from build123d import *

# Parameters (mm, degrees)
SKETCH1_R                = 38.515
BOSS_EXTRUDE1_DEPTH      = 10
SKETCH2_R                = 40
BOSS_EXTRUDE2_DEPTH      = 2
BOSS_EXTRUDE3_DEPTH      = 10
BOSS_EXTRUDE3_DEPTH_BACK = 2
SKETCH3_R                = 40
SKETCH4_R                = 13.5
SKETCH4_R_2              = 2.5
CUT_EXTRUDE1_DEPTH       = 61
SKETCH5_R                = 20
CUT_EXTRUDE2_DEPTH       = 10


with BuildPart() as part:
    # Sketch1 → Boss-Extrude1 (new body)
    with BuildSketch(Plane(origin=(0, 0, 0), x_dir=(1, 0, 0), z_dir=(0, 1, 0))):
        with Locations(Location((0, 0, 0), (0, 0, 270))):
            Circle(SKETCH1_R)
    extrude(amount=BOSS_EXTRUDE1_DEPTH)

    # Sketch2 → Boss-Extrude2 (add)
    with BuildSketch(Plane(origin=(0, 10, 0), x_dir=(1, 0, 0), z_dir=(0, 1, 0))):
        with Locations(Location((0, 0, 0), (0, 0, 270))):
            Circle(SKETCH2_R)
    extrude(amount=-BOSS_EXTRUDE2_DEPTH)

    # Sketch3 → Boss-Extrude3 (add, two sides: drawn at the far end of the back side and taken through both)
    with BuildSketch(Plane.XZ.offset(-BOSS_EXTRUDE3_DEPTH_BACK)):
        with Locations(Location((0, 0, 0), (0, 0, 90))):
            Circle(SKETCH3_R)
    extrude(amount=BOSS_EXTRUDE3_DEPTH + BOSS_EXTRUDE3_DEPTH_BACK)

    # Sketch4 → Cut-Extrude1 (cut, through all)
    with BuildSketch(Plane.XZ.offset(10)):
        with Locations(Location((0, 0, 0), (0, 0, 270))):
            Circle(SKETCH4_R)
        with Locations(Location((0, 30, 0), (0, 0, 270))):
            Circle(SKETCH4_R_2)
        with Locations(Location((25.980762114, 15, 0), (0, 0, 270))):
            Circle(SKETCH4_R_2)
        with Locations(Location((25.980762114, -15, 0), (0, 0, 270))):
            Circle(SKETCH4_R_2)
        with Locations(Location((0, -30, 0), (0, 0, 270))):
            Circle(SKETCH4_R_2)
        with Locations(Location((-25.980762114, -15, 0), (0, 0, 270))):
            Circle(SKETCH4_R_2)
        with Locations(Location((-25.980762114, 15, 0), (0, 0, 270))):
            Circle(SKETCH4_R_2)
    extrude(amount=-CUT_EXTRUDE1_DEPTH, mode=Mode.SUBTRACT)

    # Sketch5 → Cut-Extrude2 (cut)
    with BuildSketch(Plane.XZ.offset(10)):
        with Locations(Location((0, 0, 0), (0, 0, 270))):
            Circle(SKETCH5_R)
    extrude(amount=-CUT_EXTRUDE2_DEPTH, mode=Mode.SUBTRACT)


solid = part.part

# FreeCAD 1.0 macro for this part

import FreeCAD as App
import Part
import Sketcher
from FreeCAD import Vector
Q = App.Units.Quantity

doc = App.newDocument("Part")
params = doc.addObject("Spreadsheet::Sheet", "Params")
for row, (alias, value) in enumerate([
    ("sketch1_diameter", "77.03 mm"),
    ("pad1_length", "10 mm"),
    ("sketch2_diameter", "80 mm"),
    ("pad2_length", "2 mm"),
    ("sketch3_diameter", "80 mm"),
    ("pad3_length", "10 mm"),
    ("pad3_length2", "2 mm"),
    ("sketch4_diameter", "27 mm"),
    ("sketch4_diameter2", "5 mm"),
    ("sketch5_diameter", "40 mm"),
    ("pocket2_length", "10 mm"),
], start=1):
    params.set(f"A{row}", alias)
    params.set(f"B{row}", "=" + value)
    params.setAlias(f"B{row}", alias)

body = doc.addObject("PartDesign::Body", "Body")

sketch1 = body.newObject("Sketcher::SketchObject", "Sketch")
sketch1.AttachmentSupport = (doc.getObject("XZ_Plane"), [""])
sketch1.MapMode = "FlatFace"
sketch1.addGeometry(Part.Circle(Vector(0, 0, 0), Vector(0, 0, 1), 39), False)
sketch1.addConstraint([
    Sketcher.Constraint("Coincident", 0, 3, -1, 1),
    Sketcher.Constraint("Diameter", 0, Q("77.03 mm")),
])
sketch1.setExpression("Constraints[1]", "Params.sketch1_diameter")
pad1 = body.newObject("PartDesign::Pad", "Pad")
pad1.Profile = sketch1
pad1.setExpression("Length", "Params.pad1_length")
pad1.Reversed = True

sketch2 = body.newObject("Sketcher::SketchObject", "Sketch001")
sketch2.AttachmentSupport = (doc.getObject("XZ_Plane"), [""])
sketch2.MapMode = "FlatFace"
sketch2.AttachmentOffset = App.Placement(Vector(0, 0, -10), App.Rotation())
sketch2.addGeometry(Part.Circle(Vector(0, 0, 0), Vector(0, 0, 1), 40), False)
sketch2.addConstraint([
    Sketcher.Constraint("Coincident", 0, 3, -1, 1),
    Sketcher.Constraint("Diameter", 0, Q("80 mm")),
])
sketch2.setExpression("Constraints[1]", "Params.sketch2_diameter")
pad2 = body.newObject("PartDesign::Pad", "Pad001")
pad2.Profile = sketch2
pad2.setExpression("Length", "Params.pad2_length")

sketch3 = body.newObject("Sketcher::SketchObject", "Sketch002")
sketch3.AttachmentSupport = (doc.getObject("XZ_Plane"), [""])
sketch3.MapMode = "FlatFace"
sketch3.addGeometry(Part.Circle(Vector(0, 0, 0), Vector(0, 0, 1), 40), False)
sketch3.addConstraint([
    Sketcher.Constraint("Coincident", 0, 3, -1, 1),
    Sketcher.Constraint("Diameter", 0, Q("80 mm")),
])
sketch3.setExpression("Constraints[1]", "Params.sketch3_diameter")
pad3 = body.newObject("PartDesign::Pad", "Pad002")
pad3.Profile = sketch3
pad3.Type = "TwoLengths"
pad3.setExpression("Length", "Params.pad3_length")
pad3.setExpression("Length2", "Params.pad3_length2")

sketch4 = body.newObject("Sketcher::SketchObject", "Sketch003")
sketch4.AttachmentSupport = (doc.getObject("XZ_Plane"), [""])
sketch4.MapMode = "FlatFace"
sketch4.AttachmentOffset = App.Placement(Vector(0, 0, 10), App.Rotation())
sketch4.addGeometry([
    Part.Circle(Vector(0, 0, 0), Vector(0, 0, 1), 13.5),
    Part.Circle(Vector(0, 30, 0), Vector(0, 0, 1), 2.5),
    Part.Circle(Vector(26, 15, 0), Vector(0, 0, 1), 2.5),
    Part.Circle(Vector(26, -15, 0), Vector(0, 0, 1), 2.5),
    Part.Circle(Vector(0, -30, 0), Vector(0, 0, 1), 2.5),
    Part.Circle(Vector(-26, -15, 0), Vector(0, 0, 1), 2.5),
    Part.Circle(Vector(-26, 15, 0), Vector(0, 0, 1), 2.5),
], False)
sketch4.addConstraint([
    Sketcher.Constraint("Coincident", 0, 3, -1, 1),
    Sketcher.Constraint("Equal", 1, 2),
    Sketcher.Constraint("Equal", 2, 3),
    Sketcher.Constraint("Equal", 3, 4),
    Sketcher.Constraint("Equal", 4, 5),
    Sketcher.Constraint("Equal", 5, 6),
    Sketcher.Constraint("Symmetric", 1, 3, 4, 3, -1, 1),
    Sketcher.Constraint("Symmetric", 2, 3, 5, 3, -1, 1),
    Sketcher.Constraint("Symmetric", 3, 3, 6, 3, -1, 1),
    Sketcher.Constraint("Symmetric", 3, 3, 5, 3, -2),
    Sketcher.Constraint("PointOnObject", 1, 3, -2),
    Sketcher.Constraint("Diameter", 0, Q("27 mm")),
    Sketcher.Constraint("Diameter", 1, Q("5 mm")),
    Sketcher.Constraint("DistanceY", -1, 1, 1, 3, Q("30 mm")),
    Sketcher.Constraint("DistanceY", -1, 1, 2, 3, Q("15 mm")),
    Sketcher.Constraint("DistanceX", -1, 1, 2, 3, Q("25.980762 mm")),
])
sketch4.setExpression("Constraints[11]", "Params.sketch4_diameter")
sketch4.setExpression("Constraints[12]", "Params.sketch4_diameter2")
pocket1 = body.newObject("PartDesign::Pocket", "Pocket")
pocket1.Profile = sketch4
pocket1.Type = "ThroughAll"

sketch5 = body.newObject("Sketcher::SketchObject", "Sketch004")
sketch5.AttachmentSupport = (doc.getObject("XZ_Plane"), [""])
sketch5.MapMode = "FlatFace"
sketch5.AttachmentOffset = App.Placement(Vector(0, 0, 10), App.Rotation())
sketch5.addGeometry(Part.Circle(Vector(0, 0, 0), Vector(0, 0, 1), 20), False)
sketch5.addConstraint([
    Sketcher.Constraint("Coincident", 0, 3, -1, 1),
    Sketcher.Constraint("Diameter", 0, Q("40 mm")),
])
sketch5.setExpression("Constraints[1]", "Params.sketch5_diameter")
pocket2 = body.newObject("PartDesign::Pocket", "Pocket001")
pocket2.Profile = sketch5
pocket2.setExpression("Length", "Params.pocket2_length")

doc.recompute()
